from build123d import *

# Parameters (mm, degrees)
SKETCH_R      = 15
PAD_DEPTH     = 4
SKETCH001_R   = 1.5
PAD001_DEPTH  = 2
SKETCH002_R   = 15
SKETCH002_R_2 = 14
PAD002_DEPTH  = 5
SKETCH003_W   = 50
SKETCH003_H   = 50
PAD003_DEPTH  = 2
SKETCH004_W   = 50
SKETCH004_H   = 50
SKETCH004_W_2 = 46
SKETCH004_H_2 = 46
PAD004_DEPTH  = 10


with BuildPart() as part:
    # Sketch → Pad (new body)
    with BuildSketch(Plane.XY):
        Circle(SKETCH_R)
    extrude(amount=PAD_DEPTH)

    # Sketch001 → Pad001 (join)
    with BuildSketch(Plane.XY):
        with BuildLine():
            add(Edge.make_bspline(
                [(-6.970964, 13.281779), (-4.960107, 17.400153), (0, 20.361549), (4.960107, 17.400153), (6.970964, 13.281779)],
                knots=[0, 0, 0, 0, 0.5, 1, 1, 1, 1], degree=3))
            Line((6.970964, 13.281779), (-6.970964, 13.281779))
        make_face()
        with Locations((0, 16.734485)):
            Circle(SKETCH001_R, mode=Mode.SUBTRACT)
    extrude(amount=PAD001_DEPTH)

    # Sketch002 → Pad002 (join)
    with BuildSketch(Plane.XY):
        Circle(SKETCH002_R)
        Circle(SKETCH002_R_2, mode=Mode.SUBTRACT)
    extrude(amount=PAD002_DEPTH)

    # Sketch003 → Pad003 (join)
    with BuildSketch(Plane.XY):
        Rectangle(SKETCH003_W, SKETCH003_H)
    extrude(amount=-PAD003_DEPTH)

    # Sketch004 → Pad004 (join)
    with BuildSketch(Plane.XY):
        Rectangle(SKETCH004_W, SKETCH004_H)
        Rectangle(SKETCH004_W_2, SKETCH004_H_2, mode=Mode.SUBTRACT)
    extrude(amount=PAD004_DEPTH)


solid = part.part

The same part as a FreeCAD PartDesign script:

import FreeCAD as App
import Part
import Sketcher

V = App.Vector

doc = App.newDocument("Part")
body = doc.addObject("PartDesign::Body", "Body")

# Sketch on XY plane
sketch1 = body.newObject("Sketcher::SketchObject", "Sketch")
sketch1.AttachmentSupport = (doc.getObject("XY_Plane"), [""])
sketch1.MapMode = "FlatFace"
sketch1.addGeometry(Part.Circle(V(0, 0, 0), V(0, 0, 1), 15), False)
sketch1.addConstraint([
    Sketcher.Constraint("Coincident", 0, 3, -1, 1),
    Sketcher.Constraint("Diameter", 0, 30.0),
])
pad1 = body.newObject("PartDesign::Pad", "Pad")
pad1.Profile = sketch1
pad1.Length = 4

# Sketch on XY plane
sketch2 = body.newObject("Sketcher::SketchObject", "Sketch001")
sketch2.AttachmentSupport = (doc.getObject("XY_Plane"), [""])
sketch2.MapMode = "FlatFace"
sketch2.addGeometry([
    Part.BSplineCurve([V(-6.970964, 13.281779, 0), V(-4.960107, 17.400153, 0), V(0, 20.361549, 0), V(4.960107, 17.400153, 0), V(6.970964, 13.281779, 0)], [4, 1, 4], [0, 0.5, 1], False, 3, [1, 1, 1, 1, 1], False),
    Part.LineSegment(V(-6.970964, 13.281779, 0), V(6.970964, 13.281779, 0)),
    Part.Circle(V(0, 16.734485, 0), V(0, 0, 1), 1.5),
], False)
sketch2.addConstraint([
    Sketcher.Constraint("Block", 0),
    Sketcher.Constraint("Coincident", 0, 1, 1, 1),
    Sketcher.Constraint("Coincident", 1, 2, 0, 2),
    Sketcher.Constraint("PointOnObject", 2, 3, -2),
    Sketcher.Constraint("Diameter", 2, 3.0),
    Sketcher.Constraint("DistanceY", -1, 1, 2, 3, 16.734485),
])
pad2 = body.newObject("PartDesign::Pad", "Pad001")
pad2.Profile = sketch2
pad2.Length = 2

# Sketch on XY plane
sketch3 = body.newObject("Sketcher::SketchObject", "Sketch002")
sketch3.AttachmentSupport = (doc.getObject("XY_Plane"), [""])
sketch3.MapMode = "FlatFace"
sketch3.addGeometry([
    Part.Circle(V(0, 0, 0), V(0, 0, 1), 15),
    Part.Circle(V(0, 0, 0), V(0, 0, 1), 14),
], False)
sketch3.addConstraint([
    Sketcher.Constraint("Coincident", 0, 3, -1, 1),
    Sketcher.Constraint("Coincident", 1, 3, -1, 1),
    Sketcher.Constraint("Diameter", 0, 30.0),
    Sketcher.Constraint("Diameter", 1, 28.0),
])
pad3 = body.newObject("PartDesign::Pad", "Pad002")
pad3.Profile = sketch3
pad3.Length = 5

# Sketch on XY plane
sketch4 = body.newObject("Sketcher::SketchObject", "Sketch003")
sketch4.AttachmentSupport = (doc.getObject("XY_Plane"), [""])
sketch4.MapMode = "FlatFace"
sketch4.addGeometry([
    Part.LineSegment(V(-25, 25, 0), V(-25, -25, 0)),
    Part.LineSegment(V(-25, -25, 0), V(25, -25, 0)),
    Part.LineSegment(V(25, -25, 0), V(25, 25, 0)),
    Part.LineSegment(V(25, 25, 0), V(-25, 25, 0)),
], False)
sketch4.addConstraint([
    Sketcher.Constraint("Coincident", 0, 2, 1, 1),
    Sketcher.Constraint("Coincident", 1, 2, 2, 1),
    Sketcher.Constraint("Coincident", 2, 2, 3, 1),
    Sketcher.Constraint("Coincident", 3, 2, 0, 1),
    Sketcher.Constraint("Vertical", 0),
    Sketcher.Constraint("Horizontal", 1),
    Sketcher.Constraint("Vertical", 2),
    Sketcher.Constraint("Horizontal", 3),
    Sketcher.Constraint("Symmetric", 0, 2, 2, 2, -1, 1),
    Sketcher.Constraint("Equal", 3, 0),
    Sketcher.Constraint("DistanceX", 1, 1, 1, 2, 50.0),
])
pad4 = body.newObject("PartDesign::Pad", "Pad003")
pad4.Profile = sketch4
pad4.Length = 2
pad4.Reversed = True

# Sketch on XY plane
sketch5 = body.newObject("Sketcher::SketchObject", "Sketch004")
sketch5.AttachmentSupport = (doc.getObject("XY_Plane"), [""])
sketch5.MapMode = "FlatFace"
sketch5.addGeometry([
    Part.LineSegment(V(-25, 25, 0), V(-25, -25, 0)),  # 0
    Part.LineSegment(V(-25, -25, 0), V(25, -25, 0)),  # 1
    Part.LineSegment(V(25, -25, 0), V(25, 25, 0)),  # 2
    Part.LineSegment(V(25, 25, 0), V(-25, 25, 0)),  # 3
    Part.LineSegment(V(23, -23, 0), V(-23, -23, 0)),  # 4
    Part.LineSegment(V(-23, -23, 0), V(-23, 23, 0)),  # 5
    Part.LineSegment(V(-23, 23, 0), V(23, 23, 0)),  # 6
    Part.LineSegment(V(23, 23, 0), V(23, -23, 0)),  # 7
], False)
sketch5.addConstraint([
    Sketcher.Constraint("Coincident", 0, 2, 1, 1),
    Sketcher.Constraint("Coincident", 1, 2, 2, 1),
    Sketcher.Constraint("Coincident", 2, 2, 3, 1),
    Sketcher.Constraint("Coincident", 3, 2, 0, 1),
    Sketcher.Constraint("Coincident", 4, 2, 5, 1),
    Sketcher.Constraint("Coincident", 5, 2, 6, 1),
    Sketcher.Constraint("Coincident", 6, 2, 7, 1),
    Sketcher.Constraint("Coincident", 7, 2, 4, 1),
    Sketcher.Constraint("Vertical", 0),
    Sketcher.Constraint("Horizontal", 1),
    Sketcher.Constraint("Vertical", 2),
    Sketcher.Constraint("Horizontal", 3),
    Sketcher.Constraint("Horizontal", 4),
    Sketcher.Constraint("Vertical", 5),
    Sketcher.Constraint("Horizontal", 6),
    Sketcher.Constraint("Vertical", 7),
    Sketcher.Constraint("Symmetric", 0, 2, 2, 2, -1, 1),
    Sketcher.Constraint("Symmetric", 4, 2, 6, 2, -1, 1),
    Sketcher.Constraint("Equal", 3, 0),
    Sketcher.Constraint("Equal", 6, 5),
    Sketcher.Constraint("DistanceX", 1, 1, 1, 2, 50.0),
    Sketcher.Constraint("DistanceX", 4, 2, 4, 1, 46.0),
])
pad5 = body.newObject("PartDesign::Pad", "Pad004")
pad5.Profile = sketch5
pad5.Length = 10

doc.recompute()
